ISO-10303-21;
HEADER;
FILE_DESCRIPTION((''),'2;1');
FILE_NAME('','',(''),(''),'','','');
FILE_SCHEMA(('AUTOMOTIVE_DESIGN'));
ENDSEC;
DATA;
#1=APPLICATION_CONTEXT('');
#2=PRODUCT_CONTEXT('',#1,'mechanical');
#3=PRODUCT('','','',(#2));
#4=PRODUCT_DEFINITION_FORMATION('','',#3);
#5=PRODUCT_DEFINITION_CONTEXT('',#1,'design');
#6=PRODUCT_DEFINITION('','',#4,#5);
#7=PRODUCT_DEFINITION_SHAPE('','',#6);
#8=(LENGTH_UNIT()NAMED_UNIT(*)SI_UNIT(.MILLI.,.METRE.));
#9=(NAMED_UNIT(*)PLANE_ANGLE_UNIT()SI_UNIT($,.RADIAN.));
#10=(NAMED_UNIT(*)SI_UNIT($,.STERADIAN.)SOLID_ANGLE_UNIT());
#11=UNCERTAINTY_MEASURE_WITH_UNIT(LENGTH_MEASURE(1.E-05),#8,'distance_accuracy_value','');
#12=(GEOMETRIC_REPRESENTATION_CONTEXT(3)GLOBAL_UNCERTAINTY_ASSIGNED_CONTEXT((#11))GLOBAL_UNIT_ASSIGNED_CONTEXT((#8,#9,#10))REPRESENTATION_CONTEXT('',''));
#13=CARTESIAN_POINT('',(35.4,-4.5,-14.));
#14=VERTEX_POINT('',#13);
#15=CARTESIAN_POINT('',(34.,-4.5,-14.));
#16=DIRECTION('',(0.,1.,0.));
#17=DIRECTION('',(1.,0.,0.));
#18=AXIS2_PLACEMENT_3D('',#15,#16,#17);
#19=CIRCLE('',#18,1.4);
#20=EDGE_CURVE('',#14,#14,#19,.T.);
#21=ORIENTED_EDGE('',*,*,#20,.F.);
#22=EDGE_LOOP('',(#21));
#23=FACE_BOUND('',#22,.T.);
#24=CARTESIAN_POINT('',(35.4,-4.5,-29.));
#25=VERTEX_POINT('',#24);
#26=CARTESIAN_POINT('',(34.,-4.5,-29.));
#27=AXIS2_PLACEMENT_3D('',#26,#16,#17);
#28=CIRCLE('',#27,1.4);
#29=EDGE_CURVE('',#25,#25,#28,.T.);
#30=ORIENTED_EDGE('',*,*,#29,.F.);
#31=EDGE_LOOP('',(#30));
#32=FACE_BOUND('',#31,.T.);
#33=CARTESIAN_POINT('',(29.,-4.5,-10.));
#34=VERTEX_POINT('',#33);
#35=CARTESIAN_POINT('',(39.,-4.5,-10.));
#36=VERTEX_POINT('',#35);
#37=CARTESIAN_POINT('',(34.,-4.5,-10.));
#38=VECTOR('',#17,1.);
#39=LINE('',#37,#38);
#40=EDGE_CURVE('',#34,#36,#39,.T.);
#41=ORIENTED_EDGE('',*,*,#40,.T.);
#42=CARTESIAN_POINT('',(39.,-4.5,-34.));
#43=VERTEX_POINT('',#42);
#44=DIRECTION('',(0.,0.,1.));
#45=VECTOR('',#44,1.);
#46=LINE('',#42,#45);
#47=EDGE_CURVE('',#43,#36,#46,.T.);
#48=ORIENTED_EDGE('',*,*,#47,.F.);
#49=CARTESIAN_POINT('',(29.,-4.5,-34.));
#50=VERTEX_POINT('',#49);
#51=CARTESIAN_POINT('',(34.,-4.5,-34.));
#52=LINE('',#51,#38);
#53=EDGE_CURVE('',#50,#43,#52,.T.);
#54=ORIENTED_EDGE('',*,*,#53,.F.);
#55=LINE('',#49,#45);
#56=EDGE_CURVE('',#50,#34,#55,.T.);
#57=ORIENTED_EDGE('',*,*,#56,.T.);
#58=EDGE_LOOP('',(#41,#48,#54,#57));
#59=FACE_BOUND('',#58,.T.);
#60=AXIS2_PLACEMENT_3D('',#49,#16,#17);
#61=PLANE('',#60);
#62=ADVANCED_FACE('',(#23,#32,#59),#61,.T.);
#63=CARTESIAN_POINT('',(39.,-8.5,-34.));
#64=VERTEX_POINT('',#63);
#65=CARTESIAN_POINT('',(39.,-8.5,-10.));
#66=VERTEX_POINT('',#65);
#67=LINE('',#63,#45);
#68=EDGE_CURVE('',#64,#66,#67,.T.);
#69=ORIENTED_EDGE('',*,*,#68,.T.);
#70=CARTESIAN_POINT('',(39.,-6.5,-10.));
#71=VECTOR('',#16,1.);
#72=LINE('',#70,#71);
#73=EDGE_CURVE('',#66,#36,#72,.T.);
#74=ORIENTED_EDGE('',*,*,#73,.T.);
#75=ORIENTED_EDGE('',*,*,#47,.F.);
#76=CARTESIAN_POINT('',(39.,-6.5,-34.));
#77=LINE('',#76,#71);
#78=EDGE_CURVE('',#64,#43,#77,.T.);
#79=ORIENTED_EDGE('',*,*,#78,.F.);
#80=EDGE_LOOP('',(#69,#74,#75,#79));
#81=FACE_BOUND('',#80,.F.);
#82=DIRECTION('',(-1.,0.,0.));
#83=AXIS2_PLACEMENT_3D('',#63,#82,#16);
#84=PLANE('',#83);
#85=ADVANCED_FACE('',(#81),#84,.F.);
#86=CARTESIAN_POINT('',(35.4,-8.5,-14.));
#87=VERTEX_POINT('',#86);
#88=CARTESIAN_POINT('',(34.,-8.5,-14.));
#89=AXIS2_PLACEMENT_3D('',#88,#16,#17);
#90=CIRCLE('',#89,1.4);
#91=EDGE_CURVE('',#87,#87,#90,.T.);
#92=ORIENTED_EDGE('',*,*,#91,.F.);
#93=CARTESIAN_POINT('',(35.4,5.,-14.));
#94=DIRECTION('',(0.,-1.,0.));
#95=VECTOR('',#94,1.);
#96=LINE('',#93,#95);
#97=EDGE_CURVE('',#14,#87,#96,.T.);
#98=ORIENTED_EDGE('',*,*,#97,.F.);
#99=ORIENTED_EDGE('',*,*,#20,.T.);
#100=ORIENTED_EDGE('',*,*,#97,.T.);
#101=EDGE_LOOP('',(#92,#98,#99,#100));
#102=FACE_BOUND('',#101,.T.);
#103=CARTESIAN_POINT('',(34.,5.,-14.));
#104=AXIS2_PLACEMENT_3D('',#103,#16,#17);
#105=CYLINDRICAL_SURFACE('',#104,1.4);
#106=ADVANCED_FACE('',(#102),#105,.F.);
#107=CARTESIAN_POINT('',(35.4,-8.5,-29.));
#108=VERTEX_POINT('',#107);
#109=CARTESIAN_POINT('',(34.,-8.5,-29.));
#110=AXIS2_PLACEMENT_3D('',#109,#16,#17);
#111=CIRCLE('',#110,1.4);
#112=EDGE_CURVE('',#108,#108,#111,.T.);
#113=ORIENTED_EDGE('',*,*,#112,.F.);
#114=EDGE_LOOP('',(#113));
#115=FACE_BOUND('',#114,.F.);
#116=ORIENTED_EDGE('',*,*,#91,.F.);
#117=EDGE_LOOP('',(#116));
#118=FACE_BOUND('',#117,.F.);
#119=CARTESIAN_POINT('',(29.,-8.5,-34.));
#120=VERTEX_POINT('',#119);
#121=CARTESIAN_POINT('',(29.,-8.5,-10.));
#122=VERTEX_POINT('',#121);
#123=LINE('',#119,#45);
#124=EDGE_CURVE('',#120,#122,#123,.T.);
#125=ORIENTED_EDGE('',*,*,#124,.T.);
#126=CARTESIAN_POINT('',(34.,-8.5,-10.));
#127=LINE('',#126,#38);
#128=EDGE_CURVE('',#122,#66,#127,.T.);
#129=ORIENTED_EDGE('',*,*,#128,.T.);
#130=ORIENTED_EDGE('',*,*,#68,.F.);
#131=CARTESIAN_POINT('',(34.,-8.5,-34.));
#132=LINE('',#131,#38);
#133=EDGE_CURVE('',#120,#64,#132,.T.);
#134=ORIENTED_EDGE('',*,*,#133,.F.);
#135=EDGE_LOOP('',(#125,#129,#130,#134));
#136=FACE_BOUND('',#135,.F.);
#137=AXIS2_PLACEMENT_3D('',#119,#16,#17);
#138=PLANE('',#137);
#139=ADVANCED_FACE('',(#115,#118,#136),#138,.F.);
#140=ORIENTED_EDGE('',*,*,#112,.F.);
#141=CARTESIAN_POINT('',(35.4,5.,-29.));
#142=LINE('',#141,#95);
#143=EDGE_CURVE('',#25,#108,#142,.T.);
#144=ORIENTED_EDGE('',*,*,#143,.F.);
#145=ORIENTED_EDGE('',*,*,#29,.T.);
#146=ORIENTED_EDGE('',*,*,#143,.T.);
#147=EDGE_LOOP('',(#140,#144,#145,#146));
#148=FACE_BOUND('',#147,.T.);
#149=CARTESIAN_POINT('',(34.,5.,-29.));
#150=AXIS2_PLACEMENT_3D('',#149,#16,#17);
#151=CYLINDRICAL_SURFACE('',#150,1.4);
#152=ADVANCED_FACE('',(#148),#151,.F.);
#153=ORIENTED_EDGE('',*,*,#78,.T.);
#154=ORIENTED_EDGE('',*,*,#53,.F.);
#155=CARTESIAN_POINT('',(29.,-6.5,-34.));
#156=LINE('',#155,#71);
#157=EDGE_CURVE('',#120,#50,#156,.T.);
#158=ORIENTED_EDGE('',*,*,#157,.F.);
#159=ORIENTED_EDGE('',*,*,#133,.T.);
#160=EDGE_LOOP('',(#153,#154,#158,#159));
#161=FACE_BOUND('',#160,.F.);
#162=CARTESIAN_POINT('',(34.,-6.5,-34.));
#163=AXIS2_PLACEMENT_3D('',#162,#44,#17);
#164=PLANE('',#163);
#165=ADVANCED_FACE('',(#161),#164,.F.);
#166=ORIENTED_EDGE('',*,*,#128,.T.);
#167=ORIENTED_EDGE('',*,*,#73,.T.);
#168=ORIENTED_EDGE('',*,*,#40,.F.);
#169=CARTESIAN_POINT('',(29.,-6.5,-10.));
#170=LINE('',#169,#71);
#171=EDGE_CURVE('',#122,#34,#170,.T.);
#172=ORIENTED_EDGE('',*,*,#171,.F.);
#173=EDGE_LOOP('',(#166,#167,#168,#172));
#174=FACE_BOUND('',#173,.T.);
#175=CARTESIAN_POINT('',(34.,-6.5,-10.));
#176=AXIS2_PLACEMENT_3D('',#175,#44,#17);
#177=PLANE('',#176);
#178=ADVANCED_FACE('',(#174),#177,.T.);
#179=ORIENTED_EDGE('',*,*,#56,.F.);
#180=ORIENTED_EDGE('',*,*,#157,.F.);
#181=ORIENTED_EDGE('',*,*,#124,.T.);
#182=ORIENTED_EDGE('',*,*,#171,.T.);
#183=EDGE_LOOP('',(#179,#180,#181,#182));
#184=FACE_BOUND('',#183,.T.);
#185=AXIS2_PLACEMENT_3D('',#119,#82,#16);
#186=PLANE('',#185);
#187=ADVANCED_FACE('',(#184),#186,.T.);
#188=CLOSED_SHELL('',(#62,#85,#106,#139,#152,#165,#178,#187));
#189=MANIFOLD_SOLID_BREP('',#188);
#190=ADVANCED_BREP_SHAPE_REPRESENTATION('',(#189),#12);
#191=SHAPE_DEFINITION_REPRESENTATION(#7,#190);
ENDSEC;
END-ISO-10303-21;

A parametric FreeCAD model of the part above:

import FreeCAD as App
import Part
import Sketcher


def add_polygon(sketch, points):
    """Adds a closed chain of lines whose ends are joined by coincident constraints."""
    first, n = sketch.GeometryCount, len(points)
    for a, b in zip(points, points[1:] + points[:1]):
        sketch.addGeometry(Part.LineSegment(App.Vector(*a, 0), App.Vector(*b, 0)), False)
    for i in range(n):
        sketch.addConstraint(Sketcher.Constraint("Coincident", first + i, 2, first + (i + 1) % n, 1))

doc = App.newDocument("Part")
body = doc.addObject("PartDesign::Body", "Body")

# Sketch on XY plane
sketch1 = body.newObject("Sketcher::SketchObject", "Sketch")
sketch1.AttachmentSupport = (doc.getObject("XY_Plane"), [""])
sketch1.MapMode = "FlatFace"
sketch1.addGeometry(Part.Circle(App.Vector(0, 0, 0), App.Vector(0, 0, 1), 1.4), False)
sketch1.addConstraint(Sketcher.Constraint("Coincident", 0, 3, -1, 1))
sketch1.addConstraint(Sketcher.Constraint("Diameter", 0, 2.8))
pad1 = body.newObject("PartDesign::Pad", "Pad")
pad1.Profile = sketch1
pad1.Length = 20
body2 = doc.addObject("PartDesign::Body", "Body001")
doc.recompute()

body.Placement = App.Placement(App.Vector(0, 0, 0), App.Rotation(App.Vector(1, 0, 0), 90))
boolean = body2.newObject("PartDesign::Boolean", "Boolean")
boolean.Type = "Fuse"
boolean.addObjects([body])
body3 = doc.addObject("PartDesign::Body", "Body002")
doc.recompute()

body2.Placement = App.Placement(App.Vector(34, 5, -29), App.Rotation(App.Vector(0, 0, 1), 0))
boolean2 = body3.newObject("PartDesign::Boolean", "Boolean001")
boolean2.Type = "Fuse"
boolean2.addObjects([body2])
body4 = doc.addObject("PartDesign::Body", "Body003")

# Sketch on XY plane
sketch2 = body4.newObject("Sketcher::SketchObject", "Sketch001")
sketch2.AttachmentSupport = (doc.getObject("XY_Plane003"), [""])
sketch2.MapMode = "FlatFace"
sketch2.addGeometry(Part.Circle(App.Vector(0, 0, 0), App.Vector(0, 0, 1), 1.4), False)
sketch2.addConstraint(Sketcher.Constraint("Coincident", 0, 3, -1, 1))
sketch2.addConstraint(Sketcher.Constraint("Diameter", 0, 2.8))
pad2 = body4.newObject("PartDesign::Pad", "Pad001")
pad2.Profile = sketch2
pad2.Length = 20
body5 = doc.addObject("PartDesign::Body", "Body004")
doc.recompute()

body4.Placement = App.Placement(App.Vector(0, 0, 0), App.Rotation(App.Vector(1, 0, 0), 90))
boolean3 = body5.newObject("PartDesign::Boolean", "Boolean002")
boolean3.Type = "Fuse"
boolean3.addObjects([body4])
body6 = doc.addObject("PartDesign::Body", "Body005")
body6.AllowCompound = True
doc.recompute()

body5.Placement = App.Placement(App.Vector(34, 5, -14), App.Rotation(App.Vector(0, 0, 1), 0))
boolean4 = body6.newObject("PartDesign::Boolean", "Boolean003")
boolean4.Type = "Fuse"
boolean4.addObjects([body5])
doc.recompute()

boolean5 = body6.newObject("PartDesign::Boolean", "Boolean004")
boolean5.Type = "Fuse"
boolean5.addObjects([body3])
body7 = doc.addObject("PartDesign::Body", "Body006")

# Sketch on XY plane
sketch3 = body7.newObject("Sketcher::SketchObject", "Sketch002")
sketch3.AttachmentSupport = (doc.getObject("XY_Plane006"), [""])
sketch3.MapMode = "FlatFace"
sketch3.AttachmentOffset = App.Placement(App.Vector(0, 0, -34), App.Rotation())
add_polygon(sketch3, [(29, -4.5), (29, -8.5), (39, -8.5), (39, -4.5)])  # lines 0-3
sketch3.addConstraint(Sketcher.Constraint("Vertical", 0))
sketch3.addConstraint(Sketcher.Constraint("Horizontal", 1))
sketch3.addConstraint(Sketcher.Constraint("Vertical", 2))
sketch3.addConstraint(Sketcher.Constraint("Horizontal", 3))
sketch3.addConstraint(Sketcher.Constraint("DistanceX", 1, 1, 1, 2, 10.0))
sketch3.addConstraint(Sketcher.Constraint("DistanceY", 0, 2, 0, 1, 4.0))
sketch3.addConstraint(Sketcher.Constraint("DistanceX", -1, 1, 0, 2, 29.0))
sketch3.addConstraint(Sketcher.Constraint("DistanceY", 0, 2, -1, 1, 8.5))
pad3 = body7.newObject("PartDesign::Pad", "Pad002")
pad3.Profile = sketch3
pad3.Length = 24
doc.recompute()

boolean6 = body7.newObject("PartDesign::Boolean", "Boolean005")
boolean6.Type = "Cut"
boolean6.addObjects([body6])

doc.recompute()
